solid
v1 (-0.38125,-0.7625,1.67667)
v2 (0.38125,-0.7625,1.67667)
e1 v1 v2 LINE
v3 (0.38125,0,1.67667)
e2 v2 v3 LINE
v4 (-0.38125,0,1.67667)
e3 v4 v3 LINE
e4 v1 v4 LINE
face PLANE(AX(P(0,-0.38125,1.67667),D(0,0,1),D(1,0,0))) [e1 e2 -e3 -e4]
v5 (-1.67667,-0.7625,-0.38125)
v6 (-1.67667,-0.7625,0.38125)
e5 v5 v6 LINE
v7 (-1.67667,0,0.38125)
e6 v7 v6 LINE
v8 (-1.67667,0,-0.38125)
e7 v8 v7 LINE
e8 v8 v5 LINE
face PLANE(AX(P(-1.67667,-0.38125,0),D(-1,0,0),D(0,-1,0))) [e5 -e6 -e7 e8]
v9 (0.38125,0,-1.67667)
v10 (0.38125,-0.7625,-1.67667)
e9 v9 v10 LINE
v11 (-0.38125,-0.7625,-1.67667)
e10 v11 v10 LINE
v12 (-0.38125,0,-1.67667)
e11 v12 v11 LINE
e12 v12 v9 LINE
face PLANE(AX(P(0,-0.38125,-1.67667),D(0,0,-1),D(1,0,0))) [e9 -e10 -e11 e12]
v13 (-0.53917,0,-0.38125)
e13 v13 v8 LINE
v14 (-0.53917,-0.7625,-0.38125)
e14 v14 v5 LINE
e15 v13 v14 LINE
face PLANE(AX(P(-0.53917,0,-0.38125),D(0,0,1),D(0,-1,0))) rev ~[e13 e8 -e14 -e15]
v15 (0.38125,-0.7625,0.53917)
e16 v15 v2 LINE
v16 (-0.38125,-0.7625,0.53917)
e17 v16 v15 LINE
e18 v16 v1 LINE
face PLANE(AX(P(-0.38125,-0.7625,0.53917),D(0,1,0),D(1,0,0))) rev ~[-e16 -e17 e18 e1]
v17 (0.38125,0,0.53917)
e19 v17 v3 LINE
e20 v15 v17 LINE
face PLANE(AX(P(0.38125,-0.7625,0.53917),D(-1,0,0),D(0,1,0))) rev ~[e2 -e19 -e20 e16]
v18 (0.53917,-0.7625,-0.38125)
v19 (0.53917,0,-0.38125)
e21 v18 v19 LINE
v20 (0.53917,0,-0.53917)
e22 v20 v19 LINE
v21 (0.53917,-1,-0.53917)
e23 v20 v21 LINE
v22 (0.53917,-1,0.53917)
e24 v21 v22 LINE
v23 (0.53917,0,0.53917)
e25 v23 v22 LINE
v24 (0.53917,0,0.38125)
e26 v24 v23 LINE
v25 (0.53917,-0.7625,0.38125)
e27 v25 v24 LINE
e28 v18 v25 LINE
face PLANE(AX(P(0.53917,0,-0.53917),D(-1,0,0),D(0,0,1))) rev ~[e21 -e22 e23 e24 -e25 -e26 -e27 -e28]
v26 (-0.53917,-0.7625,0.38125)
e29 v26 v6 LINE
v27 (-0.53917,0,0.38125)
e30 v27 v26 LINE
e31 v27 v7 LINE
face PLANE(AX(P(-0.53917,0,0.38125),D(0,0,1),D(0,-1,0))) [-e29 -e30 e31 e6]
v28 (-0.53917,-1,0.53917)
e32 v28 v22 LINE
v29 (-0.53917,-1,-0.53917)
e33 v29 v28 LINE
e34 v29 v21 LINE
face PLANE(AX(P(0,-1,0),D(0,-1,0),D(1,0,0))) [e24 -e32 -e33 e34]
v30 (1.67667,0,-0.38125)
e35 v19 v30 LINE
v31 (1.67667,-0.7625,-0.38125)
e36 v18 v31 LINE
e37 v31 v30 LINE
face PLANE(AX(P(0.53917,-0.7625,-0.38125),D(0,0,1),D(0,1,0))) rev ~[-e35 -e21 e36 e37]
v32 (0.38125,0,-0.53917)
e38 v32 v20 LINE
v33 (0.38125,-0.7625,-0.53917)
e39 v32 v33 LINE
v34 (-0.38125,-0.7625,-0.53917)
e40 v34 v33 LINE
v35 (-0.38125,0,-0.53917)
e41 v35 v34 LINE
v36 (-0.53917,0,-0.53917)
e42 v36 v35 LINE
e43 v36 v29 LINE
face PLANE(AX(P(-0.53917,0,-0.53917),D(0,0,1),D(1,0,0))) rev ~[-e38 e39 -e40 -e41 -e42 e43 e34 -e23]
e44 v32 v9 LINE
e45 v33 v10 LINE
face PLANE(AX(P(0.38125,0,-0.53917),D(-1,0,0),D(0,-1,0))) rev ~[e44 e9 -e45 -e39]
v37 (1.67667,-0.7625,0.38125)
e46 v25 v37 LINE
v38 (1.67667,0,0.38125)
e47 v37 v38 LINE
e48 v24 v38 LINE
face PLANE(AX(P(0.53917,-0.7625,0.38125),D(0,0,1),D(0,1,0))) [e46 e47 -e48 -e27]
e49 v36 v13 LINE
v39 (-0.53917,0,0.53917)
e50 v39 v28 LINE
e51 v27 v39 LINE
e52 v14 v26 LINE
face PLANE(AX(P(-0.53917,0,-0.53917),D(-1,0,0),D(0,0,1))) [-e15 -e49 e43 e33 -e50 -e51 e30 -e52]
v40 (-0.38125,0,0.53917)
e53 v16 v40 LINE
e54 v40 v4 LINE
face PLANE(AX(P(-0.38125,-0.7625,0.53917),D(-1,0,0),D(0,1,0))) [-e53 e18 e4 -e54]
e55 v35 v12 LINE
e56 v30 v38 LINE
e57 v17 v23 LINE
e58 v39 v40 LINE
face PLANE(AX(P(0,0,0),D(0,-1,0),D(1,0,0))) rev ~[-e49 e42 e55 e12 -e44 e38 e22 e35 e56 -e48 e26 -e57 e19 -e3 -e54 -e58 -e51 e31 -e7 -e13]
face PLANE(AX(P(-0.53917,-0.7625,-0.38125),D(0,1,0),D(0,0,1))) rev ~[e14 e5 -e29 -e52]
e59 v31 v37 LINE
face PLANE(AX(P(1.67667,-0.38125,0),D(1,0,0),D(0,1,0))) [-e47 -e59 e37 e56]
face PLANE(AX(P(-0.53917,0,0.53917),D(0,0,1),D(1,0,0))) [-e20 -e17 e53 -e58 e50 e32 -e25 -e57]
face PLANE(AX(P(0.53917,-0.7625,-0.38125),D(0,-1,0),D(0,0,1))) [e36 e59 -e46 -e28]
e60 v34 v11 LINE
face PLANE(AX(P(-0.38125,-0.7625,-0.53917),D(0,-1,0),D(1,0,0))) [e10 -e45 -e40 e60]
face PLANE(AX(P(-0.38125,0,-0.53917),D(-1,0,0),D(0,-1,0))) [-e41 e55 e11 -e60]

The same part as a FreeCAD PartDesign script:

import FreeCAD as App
import Part
import Sketcher

V = App.Vector


def add_polygon(sketch, points):
    """Adds a closed chain of lines whose ends are joined by coincident constraints."""
    first, n = sketch.GeometryCount, len(points)
    for a, b in zip(points, points[1:] + points[:1]):
        sketch.addGeometry(Part.LineSegment(App.Vector(*a, 0), App.Vector(*b, 0)), False)
    for i in range(n):
        sketch.addConstraint(Sketcher.Constraint("Coincident", first + i, 2, first + (i + 1) % n, 1))

doc = App.newDocument("Part")
body = doc.addObject("PartDesign::Body", "Body")

# Sketch on XZ plane
sketch1 = doc.addObject("Sketcher::SketchObject", "Sketch")
body.addObject(sketch1)
sketch1.AttachmentSupport = (doc.XZ_Plane, [""])
sketch1.MapMode = "FlatFace"
add_polygon(sketch1, [(-0.53917, 0.53917), (-0.53917, -0.53917), (0.53917, -0.53917), (0.53917, 0.53917)])  # lines 0-3
sketch1.addConstraint([
    Sketcher.Constraint("Vertical", 0),
    Sketcher.Constraint("Horizontal", 1),
    Sketcher.Constraint("Vertical", 2),
    Sketcher.Constraint("Horizontal", 3),
    Sketcher.Constraint("Symmetric", 0, 2, 2, 2, -1, 1),
    Sketcher.Constraint("Equal", 3, 0),
    Sketcher.Constraint("DistanceX", 1, 1, 1, 2, 1.07834),
])
pad1 = doc.addObject("PartDesign::Pad", "Pad")
body.addObject(pad1)
pad1.Profile = sketch1
pad1.Length = 1

# Sketch on XY plane
sketch2 = doc.addObject("Sketcher::SketchObject", "Sketch001")
body.addObject(sketch2)
sketch2.AttachmentSupport = (doc.XY_Plane, [""])
sketch2.MapMode = "FlatFace"
sketch2.AttachmentOffset = App.Placement(V(0, 0, -0.53917), App.Rotation())
add_polygon(sketch2, [(-0.38125, -0.7625), (-0.38125, 0), (0.38125, 0), (0.38125, -0.7625)])  # lines 0-3
sketch2.addConstraint([
    Sketcher.Constraint("Vertical", 0),
    Sketcher.Constraint("Horizontal", 1),
    Sketcher.Constraint("Vertical", 2),
    Sketcher.Constraint("Horizontal", 3),
    Sketcher.Constraint("Symmetric", 0, 2, 1, 2, -1, 1),
    Sketcher.Constraint("Equal", 3, 0),
    Sketcher.Constraint("DistanceX", 1, 1, 1, 2, 0.7625),
])
pad2 = doc.addObject("PartDesign::Pad", "Pad001")
body.addObject(pad2)
pad2.Profile = sketch2
pad2.Length = 1.1375
pad2.Reversed = True

# Sketch on YZ plane
sketch3 = doc.addObject("Sketcher::SketchObject", "Sketch002")
body.addObject(sketch3)
sketch3.AttachmentSupport = (doc.YZ_Plane, [""])
sketch3.MapMode = "FlatFace"
sketch3.AttachmentOffset = App.Placement(V(0, 0, -0.53917), App.Rotation())
add_polygon(sketch3, [(0, 0.38125), (0, -0.38125), (-0.7625, -0.38125), (-0.7625, 0.38125)])  # lines 0-3
sketch3.addConstraint([
    Sketcher.Constraint("Vertical", 0),
    Sketcher.Constraint("Horizontal", 1),
    Sketcher.Constraint("Vertical", 2),
    Sketcher.Constraint("Horizontal", 3),
    Sketcher.Constraint("Symmetric", 0, 2, 3, 2, -1, 1),
    Sketcher.Constraint("Equal", 3, 0),
    Sketcher.Constraint("DistanceX", 1, 2, 1, 1, 0.7625),
])
pad3 = doc.addObject("PartDesign::Pad", "Pad002")
body.addObject(pad3)
pad3.Profile = sketch3
pad3.Length = 1.1375
pad3.Reversed = True

# Sketch on XY plane
sketch4 = doc.addObject("Sketcher::SketchObject", "Sketch003")
body.addObject(sketch4)
sketch4.AttachmentSupport = (doc.XY_Plane, [""])
sketch4.MapMode = "FlatFace"
sketch4.AttachmentOffset = App.Placement(V(0, 0, 0.53917), App.Rotation())
add_polygon(sketch4, [(-0.38125, 0), (-0.38125, -0.7625), (0.38125, -0.7625), (0.38125, 0)])  # lines 0-3
sketch4.addConstraint([
    Sketcher.Constraint("Vertical", 0),
    Sketcher.Constraint("Horizontal", 1),
    Sketcher.Constraint("Vertical", 2),
    Sketcher.Constraint("Horizontal", 3),
    Sketcher.Constraint("Symmetric", 2, 2, 3, 2, -1, 1),
    Sketcher.Constraint("Equal", 3, 0),
    Sketcher.Constraint("DistanceX", 1, 1, 1, 2, 0.7625),
])
pad4 = doc.addObject("PartDesign::Pad", "Pad003")
body.addObject(pad4)
pad4.Profile = sketch4
pad4.Length = 1.1375

# Sketch on YZ plane
sketch5 = doc.addObject("Sketcher::SketchObject", "Sketch004")
body.addObject(sketch5)
sketch5.AttachmentSupport = (doc.YZ_Plane, [""])
sketch5.MapMode = "FlatFace"
sketch5.AttachmentOffset = App.Placement(V(0, 0, 0.53917), App.Rotation())
add_polygon(sketch5, [(-0.7625, 0.38125), (-0.7625, -0.38125), (0, -0.38125), (0, 0.38125)])  # lines 0-3
sketch5.addConstraint([
    Sketcher.Constraint("Vertical", 0),
    Sketcher.Constraint("Horizontal", 1),
    Sketcher.Constraint("Vertical", 2),
    Sketcher.Constraint("Horizontal", 3),
    Sketcher.Constraint("Symmetric", 1, 2, 2, 2, -1, 1),
    Sketcher.Constraint("Equal", 3, 0),
    Sketcher.Constraint("DistanceX", 1, 1, 1, 2, 0.7625),
])
pad5 = doc.addObject("PartDesign::Pad", "Pad004")
body.addObject(pad5)
pad5.Profile = sketch5
pad5.Length = 1.1375

doc.recompute()
